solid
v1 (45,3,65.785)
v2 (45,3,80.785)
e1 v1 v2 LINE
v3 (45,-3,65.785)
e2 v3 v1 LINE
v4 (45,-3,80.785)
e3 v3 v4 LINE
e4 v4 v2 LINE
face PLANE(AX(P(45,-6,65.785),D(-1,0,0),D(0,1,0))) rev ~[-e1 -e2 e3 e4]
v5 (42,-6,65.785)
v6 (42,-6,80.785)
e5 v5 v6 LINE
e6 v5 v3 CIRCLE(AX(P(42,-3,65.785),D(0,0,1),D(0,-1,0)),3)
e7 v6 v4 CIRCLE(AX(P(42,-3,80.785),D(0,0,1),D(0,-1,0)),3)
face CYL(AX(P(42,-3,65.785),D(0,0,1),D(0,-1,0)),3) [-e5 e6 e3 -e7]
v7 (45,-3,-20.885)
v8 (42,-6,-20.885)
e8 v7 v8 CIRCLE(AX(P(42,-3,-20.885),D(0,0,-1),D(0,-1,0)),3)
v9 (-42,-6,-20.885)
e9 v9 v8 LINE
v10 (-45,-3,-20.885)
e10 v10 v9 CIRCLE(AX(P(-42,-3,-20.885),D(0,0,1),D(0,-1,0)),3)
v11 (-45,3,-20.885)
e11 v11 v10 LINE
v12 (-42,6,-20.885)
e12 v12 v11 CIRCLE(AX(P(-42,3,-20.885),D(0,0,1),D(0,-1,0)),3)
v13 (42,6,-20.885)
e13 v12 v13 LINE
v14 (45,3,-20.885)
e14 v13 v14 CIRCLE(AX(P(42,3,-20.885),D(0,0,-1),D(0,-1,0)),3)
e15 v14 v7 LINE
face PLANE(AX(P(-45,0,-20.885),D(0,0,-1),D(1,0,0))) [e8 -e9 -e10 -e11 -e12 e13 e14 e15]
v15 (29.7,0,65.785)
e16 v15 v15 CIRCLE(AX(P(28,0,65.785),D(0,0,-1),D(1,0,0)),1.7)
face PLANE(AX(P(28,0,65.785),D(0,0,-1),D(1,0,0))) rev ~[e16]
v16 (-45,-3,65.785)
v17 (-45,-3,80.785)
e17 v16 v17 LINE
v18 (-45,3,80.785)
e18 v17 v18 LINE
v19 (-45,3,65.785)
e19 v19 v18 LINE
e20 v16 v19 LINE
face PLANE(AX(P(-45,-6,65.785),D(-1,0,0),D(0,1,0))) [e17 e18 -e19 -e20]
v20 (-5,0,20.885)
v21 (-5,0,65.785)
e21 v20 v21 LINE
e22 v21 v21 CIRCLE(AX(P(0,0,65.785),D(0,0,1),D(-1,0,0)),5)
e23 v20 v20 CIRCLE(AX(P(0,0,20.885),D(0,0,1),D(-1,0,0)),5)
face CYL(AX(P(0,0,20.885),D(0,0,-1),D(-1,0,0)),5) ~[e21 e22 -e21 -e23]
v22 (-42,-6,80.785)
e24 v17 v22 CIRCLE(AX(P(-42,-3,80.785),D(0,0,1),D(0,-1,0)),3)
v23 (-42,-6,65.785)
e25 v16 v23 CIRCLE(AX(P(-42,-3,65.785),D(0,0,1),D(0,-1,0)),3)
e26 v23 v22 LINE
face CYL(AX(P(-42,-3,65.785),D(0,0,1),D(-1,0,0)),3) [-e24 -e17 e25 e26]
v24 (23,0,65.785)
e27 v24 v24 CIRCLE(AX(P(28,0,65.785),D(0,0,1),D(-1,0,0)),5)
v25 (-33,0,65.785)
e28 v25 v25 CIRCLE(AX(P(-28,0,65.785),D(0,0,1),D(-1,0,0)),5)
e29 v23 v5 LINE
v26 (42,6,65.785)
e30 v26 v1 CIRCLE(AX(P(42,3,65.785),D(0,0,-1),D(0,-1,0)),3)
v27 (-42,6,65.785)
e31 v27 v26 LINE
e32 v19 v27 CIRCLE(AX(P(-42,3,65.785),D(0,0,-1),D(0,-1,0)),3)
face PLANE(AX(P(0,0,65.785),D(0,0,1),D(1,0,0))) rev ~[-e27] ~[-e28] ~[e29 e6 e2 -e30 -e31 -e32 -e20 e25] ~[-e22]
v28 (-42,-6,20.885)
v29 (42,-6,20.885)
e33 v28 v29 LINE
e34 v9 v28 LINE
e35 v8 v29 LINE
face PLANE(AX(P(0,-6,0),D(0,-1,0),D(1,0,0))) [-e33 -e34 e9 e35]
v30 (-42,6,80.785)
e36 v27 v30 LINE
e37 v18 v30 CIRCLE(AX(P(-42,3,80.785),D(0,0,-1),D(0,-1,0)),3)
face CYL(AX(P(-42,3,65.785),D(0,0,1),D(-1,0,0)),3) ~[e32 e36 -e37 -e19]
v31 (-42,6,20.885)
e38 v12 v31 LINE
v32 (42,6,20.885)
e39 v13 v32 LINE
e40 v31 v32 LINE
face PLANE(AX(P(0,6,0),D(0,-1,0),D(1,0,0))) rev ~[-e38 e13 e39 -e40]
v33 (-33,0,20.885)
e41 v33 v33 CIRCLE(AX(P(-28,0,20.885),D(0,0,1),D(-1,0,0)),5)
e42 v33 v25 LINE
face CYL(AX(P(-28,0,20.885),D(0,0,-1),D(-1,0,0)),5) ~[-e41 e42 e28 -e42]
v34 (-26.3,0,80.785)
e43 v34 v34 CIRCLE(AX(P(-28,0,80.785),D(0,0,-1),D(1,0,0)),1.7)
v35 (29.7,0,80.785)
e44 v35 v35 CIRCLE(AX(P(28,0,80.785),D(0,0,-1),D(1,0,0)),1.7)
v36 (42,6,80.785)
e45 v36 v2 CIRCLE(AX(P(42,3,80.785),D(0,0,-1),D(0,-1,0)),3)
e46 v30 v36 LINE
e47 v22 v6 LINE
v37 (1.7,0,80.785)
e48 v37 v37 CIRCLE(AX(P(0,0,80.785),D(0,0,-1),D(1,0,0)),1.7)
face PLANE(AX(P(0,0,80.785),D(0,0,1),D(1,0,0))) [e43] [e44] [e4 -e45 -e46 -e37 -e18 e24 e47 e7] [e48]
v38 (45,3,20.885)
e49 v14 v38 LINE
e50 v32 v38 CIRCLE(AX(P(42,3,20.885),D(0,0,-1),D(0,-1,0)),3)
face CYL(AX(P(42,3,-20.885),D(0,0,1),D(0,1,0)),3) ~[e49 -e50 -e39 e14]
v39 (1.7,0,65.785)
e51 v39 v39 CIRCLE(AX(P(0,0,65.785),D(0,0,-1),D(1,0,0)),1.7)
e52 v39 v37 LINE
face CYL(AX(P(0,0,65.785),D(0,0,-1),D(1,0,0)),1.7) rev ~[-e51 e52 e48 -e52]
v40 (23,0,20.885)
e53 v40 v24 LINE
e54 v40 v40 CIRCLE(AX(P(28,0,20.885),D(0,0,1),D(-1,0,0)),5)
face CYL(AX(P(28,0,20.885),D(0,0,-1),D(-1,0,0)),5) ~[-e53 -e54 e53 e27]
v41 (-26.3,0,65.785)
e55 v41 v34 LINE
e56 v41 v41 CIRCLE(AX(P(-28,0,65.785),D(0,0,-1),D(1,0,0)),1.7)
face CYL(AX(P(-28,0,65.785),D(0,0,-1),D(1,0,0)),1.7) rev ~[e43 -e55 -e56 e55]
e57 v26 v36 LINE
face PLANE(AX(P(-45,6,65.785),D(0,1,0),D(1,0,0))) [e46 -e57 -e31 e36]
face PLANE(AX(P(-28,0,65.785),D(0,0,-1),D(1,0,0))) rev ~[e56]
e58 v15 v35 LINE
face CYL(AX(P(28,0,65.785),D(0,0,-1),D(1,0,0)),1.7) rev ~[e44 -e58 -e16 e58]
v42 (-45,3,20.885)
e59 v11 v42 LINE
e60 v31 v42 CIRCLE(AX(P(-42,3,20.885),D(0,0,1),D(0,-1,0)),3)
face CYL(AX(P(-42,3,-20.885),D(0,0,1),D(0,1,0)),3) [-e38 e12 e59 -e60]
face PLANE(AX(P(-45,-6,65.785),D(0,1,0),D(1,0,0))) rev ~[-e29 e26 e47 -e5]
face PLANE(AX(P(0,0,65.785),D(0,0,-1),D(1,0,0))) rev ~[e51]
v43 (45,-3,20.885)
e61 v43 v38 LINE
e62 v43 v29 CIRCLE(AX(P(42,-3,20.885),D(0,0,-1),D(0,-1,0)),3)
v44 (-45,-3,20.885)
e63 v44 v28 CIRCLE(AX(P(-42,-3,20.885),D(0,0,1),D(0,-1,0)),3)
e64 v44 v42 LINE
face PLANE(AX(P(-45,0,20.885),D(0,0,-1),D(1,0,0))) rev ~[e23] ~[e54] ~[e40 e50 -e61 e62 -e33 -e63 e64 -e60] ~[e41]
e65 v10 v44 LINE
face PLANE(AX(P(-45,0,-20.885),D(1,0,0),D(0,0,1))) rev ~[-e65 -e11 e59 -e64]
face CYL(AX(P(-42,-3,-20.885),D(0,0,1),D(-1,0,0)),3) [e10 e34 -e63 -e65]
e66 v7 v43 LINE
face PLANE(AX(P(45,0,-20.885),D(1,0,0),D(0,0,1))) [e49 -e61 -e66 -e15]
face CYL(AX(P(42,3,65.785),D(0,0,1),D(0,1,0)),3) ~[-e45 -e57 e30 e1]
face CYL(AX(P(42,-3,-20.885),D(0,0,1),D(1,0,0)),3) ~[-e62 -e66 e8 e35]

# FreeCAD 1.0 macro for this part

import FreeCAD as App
import Part
import Sketcher
Q = App.Units.Quantity


def edges_at(feature, points):
    """Names of the edges that pass closest to the given points."""
    edges = feature.Shape.Edges
    near = lambda p: min(range(len(edges)), key=lambda i: edges[i].distToShape(Part.Vertex(*p))[0])
    return sorted({f"Edge{near(p) + 1}" for p in points})

doc = App.newDocument("Part")
body = doc.addObject("PartDesign::Body", "Body")

sketch1 = body.newObject("Sketcher::SketchObject", "Sketch")
sketch1.AttachmentSupport = (doc.getObject("XZ_Plane"), [""])
sketch1.MapMode = "FlatFace"
sketch1.addGeometry([
    Part.LineSegment(App.Vector(-45, 20.885, 0), App.Vector(-45, -20.885, 0)),
    Part.LineSegment(App.Vector(-45, -20.885, 0), App.Vector(45, -20.885, 0)),
    Part.LineSegment(App.Vector(45, -20.885, 0), App.Vector(45, 20.885, 0)),
    Part.LineSegment(App.Vector(45, 20.885, 0), App.Vector(-45, 20.885, 0)),
], False)
sketch1.addConstraint([
    Sketcher.Constraint("Coincident", 0, 2, 1, 1),
    Sketcher.Constraint("Coincident", 1, 2, 2, 1),
    Sketcher.Constraint("Coincident", 2, 2, 3, 1),
    Sketcher.Constraint("Coincident", 3, 2, 0, 1),
    Sketcher.Constraint("Vertical", 0),
    Sketcher.Constraint("Horizontal", 1),
    Sketcher.Constraint("Vertical", 2),
    Sketcher.Constraint("Horizontal", 3),
    Sketcher.Constraint("Symmetric", 0, 2, 2, 2, -1, 1),
    Sketcher.Constraint("DistanceX", 1, 1, 1, 2, Q("90 mm")),
    Sketcher.Constraint("DistanceY", 0, 2, 0, 1, Q("41.77 mm")),
])
pad1 = body.newObject("PartDesign::Pad", "Pad")
pad1.Profile = sketch1
pad1.Length = 12
pad1.Midplane = True

sketch2 = body.newObject("Sketcher::SketchObject", "Sketch001")
sketch2.AttachmentSupport = (doc.getObject("XY_Plane"), [""])
sketch2.MapMode = "FlatFace"
sketch2.AttachmentOffset = App.Placement(App.Vector(0, 0, 20.885), App.Rotation())
sketch2.addGeometry([
    Part.Circle(App.Vector(-28, 0, 0), App.Vector(0, 0, 1), 5),
    Part.Circle(App.Vector(0, 0, 0), App.Vector(0, 0, 1), 5),
    Part.Circle(App.Vector(28, 0, 0), App.Vector(0, 0, 1), 5),
], False)
sketch2.addConstraint([
    Sketcher.Constraint("Coincident", 1, 3, -1, 1),
    Sketcher.Constraint("Equal", 0, 1),
    Sketcher.Constraint("Equal", 1, 2),
    Sketcher.Constraint("Symmetric", 0, 3, 2, 3, -1, 1),
    Sketcher.Constraint("PointOnObject", 0, 3, -1),
    Sketcher.Constraint("Diameter", 0, Q("10 mm")),
    Sketcher.Constraint("DistanceX", 0, 3, -1, 1, Q("28 mm")),
])
pad2 = body.newObject("PartDesign::Pad", "Pad001")
pad2.Profile = sketch2
pad2.Length = 44.9

sketch3 = body.newObject("Sketcher::SketchObject", "Sketch002")
sketch3.AttachmentSupport = (doc.getObject("XY_Plane"), [""])
sketch3.MapMode = "FlatFace"
sketch3.AttachmentOffset = App.Placement(App.Vector(0, 0, 65.785), App.Rotation())
sketch3.addGeometry([
    Part.LineSegment(App.Vector(-45, 6, 0), App.Vector(-45, -6, 0)),
    Part.LineSegment(App.Vector(-45, -6, 0), App.Vector(45, -6, 0)),
    Part.LineSegment(App.Vector(45, -6, 0), App.Vector(45, 6, 0)),
    Part.LineSegment(App.Vector(45, 6, 0), App.Vector(-45, 6, 0)),
], False)
sketch3.addConstraint([
    Sketcher.Constraint("Coincident", 0, 2, 1, 1),
    Sketcher.Constraint("Coincident", 1, 2, 2, 1),
    Sketcher.Constraint("Coincident", 2, 2, 3, 1),
    Sketcher.Constraint("Coincident", 3, 2, 0, 1),
    Sketcher.Constraint("Vertical", 0),
    Sketcher.Constraint("Horizontal", 1),
    Sketcher.Constraint("Vertical", 2),
    Sketcher.Constraint("Horizontal", 3),
    Sketcher.Constraint("Symmetric", 0, 2, 2, 2, -1, 1),
    Sketcher.Constraint("DistanceX", 1, 1, 1, 2, Q("90 mm")),
    Sketcher.Constraint("DistanceY", 0, 2, 0, 1, Q("12 mm")),
])
pad3 = body.newObject("PartDesign::Pad", "Pad002")
pad3.Profile = sketch3
pad3.Length = 15
doc.recompute()

fillet = body.newObject("PartDesign::Fillet", "Fillet")
fillet.Base = (pad3, edges_at(pad3, [
    (45, -6, 0),
    (45, 6, 0),
    (-45, -6, 0),
    (-45, 6, 0),
    (-45, 6, 73.285),
    (-45, -6, 73.285),
    (45, -6, 73.285),
    (45, 6, 73.285),
]))
fillet.Radius = 3

sketch4 = body.newObject("Sketcher::SketchObject", "Sketch003")
sketch4.AttachmentSupport = (doc.getObject("XY_Plane"), [""])
sketch4.MapMode = "FlatFace"
sketch4.AttachmentOffset = App.Placement(App.Vector(0, 0, 65.785), App.Rotation())
sketch4.addGeometry([
    Part.Circle(App.Vector(-28, 0, 0), App.Vector(0, 0, 1), 1.7),
    Part.Circle(App.Vector(0, 0, 0), App.Vector(0, 0, 1), 1.7),
    Part.Circle(App.Vector(28, 0, 0), App.Vector(0, 0, 1), 1.7),
], False)
sketch4.addConstraint([
    Sketcher.Constraint("Coincident", 1, 3, -1, 1),
    Sketcher.Constraint("Equal", 0, 1),
    Sketcher.Constraint("Equal", 1, 2),
    Sketcher.Constraint("Symmetric", 0, 3, 2, 3, -1, 1),
    Sketcher.Constraint("PointOnObject", 0, 3, -1),
    Sketcher.Constraint("Diameter", 0, Q("3.4 mm")),
    Sketcher.Constraint("DistanceX", 0, 3, -1, 1, Q("28 mm")),
])
pocket1 = body.newObject("PartDesign::Pocket", "Pocket")
pocket1.Profile = sketch4
pocket1.Length = 20
pocket1.Reversed = True

doc.recompute()
